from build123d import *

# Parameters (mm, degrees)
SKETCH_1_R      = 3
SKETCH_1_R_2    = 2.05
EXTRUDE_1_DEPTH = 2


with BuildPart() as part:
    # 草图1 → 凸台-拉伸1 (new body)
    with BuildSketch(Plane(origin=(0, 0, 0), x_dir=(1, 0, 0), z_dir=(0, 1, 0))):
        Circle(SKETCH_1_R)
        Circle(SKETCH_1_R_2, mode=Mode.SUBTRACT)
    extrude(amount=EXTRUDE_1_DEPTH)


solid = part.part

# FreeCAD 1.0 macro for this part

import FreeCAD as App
import Part
import Sketcher

V = App.Vector

doc = App.newDocument("Part")
params = doc.addObject("Spreadsheet::Sheet", "Params")
for row, (alias, value) in enumerate([
    ("sketch1_diameter", "6 mm"),
    ("sketch1_diameter2", "4.1 mm"),
    ("pad1_length", "2 mm"),
], start=1):
    params.set(f"A{row}", alias)
    params.set(f"B{row}", "=" + value)
    params.setAlias(f"B{row}", alias)

body = doc.addObject("PartDesign::Body", "Body")

# Sketch on XZ plane
sketch1 = body.newObject("Sketcher::SketchObject", "Sketch")
sketch1.AttachmentSupport = (doc.getObject("XZ_Plane"), [""])
sketch1.MapMode = "FlatFace"
sketch1.addGeometry([
    Part.Circle(V(0, 0, 0), V(0, 0, 1), 3),
    Part.Circle(V(0, 0, 0), V(0, 0, 1), 2.05),
], False)
sketch1.addConstraint([
    Sketcher.Constraint("Coincident", 0, 3, -1, 1),
    Sketcher.Constraint("Coincident", 1, 3, -1, 1),
    Sketcher.Constraint("Diameter", 0, 6.0),
    Sketcher.Constraint("Diameter", 1, 4.1),
])
sketch1.setExpression("Constraints[2]", "Params.sketch1_diameter")
sketch1.setExpression("Constraints[3]", "Params.sketch1_diameter2")
pad1 = body.newObject("PartDesign::Pad", "Pad")
pad1.Profile = sketch1
pad1.setExpression("Length", "Params.pad1_length")
pad1.Reversed = True

doc.recompute()
